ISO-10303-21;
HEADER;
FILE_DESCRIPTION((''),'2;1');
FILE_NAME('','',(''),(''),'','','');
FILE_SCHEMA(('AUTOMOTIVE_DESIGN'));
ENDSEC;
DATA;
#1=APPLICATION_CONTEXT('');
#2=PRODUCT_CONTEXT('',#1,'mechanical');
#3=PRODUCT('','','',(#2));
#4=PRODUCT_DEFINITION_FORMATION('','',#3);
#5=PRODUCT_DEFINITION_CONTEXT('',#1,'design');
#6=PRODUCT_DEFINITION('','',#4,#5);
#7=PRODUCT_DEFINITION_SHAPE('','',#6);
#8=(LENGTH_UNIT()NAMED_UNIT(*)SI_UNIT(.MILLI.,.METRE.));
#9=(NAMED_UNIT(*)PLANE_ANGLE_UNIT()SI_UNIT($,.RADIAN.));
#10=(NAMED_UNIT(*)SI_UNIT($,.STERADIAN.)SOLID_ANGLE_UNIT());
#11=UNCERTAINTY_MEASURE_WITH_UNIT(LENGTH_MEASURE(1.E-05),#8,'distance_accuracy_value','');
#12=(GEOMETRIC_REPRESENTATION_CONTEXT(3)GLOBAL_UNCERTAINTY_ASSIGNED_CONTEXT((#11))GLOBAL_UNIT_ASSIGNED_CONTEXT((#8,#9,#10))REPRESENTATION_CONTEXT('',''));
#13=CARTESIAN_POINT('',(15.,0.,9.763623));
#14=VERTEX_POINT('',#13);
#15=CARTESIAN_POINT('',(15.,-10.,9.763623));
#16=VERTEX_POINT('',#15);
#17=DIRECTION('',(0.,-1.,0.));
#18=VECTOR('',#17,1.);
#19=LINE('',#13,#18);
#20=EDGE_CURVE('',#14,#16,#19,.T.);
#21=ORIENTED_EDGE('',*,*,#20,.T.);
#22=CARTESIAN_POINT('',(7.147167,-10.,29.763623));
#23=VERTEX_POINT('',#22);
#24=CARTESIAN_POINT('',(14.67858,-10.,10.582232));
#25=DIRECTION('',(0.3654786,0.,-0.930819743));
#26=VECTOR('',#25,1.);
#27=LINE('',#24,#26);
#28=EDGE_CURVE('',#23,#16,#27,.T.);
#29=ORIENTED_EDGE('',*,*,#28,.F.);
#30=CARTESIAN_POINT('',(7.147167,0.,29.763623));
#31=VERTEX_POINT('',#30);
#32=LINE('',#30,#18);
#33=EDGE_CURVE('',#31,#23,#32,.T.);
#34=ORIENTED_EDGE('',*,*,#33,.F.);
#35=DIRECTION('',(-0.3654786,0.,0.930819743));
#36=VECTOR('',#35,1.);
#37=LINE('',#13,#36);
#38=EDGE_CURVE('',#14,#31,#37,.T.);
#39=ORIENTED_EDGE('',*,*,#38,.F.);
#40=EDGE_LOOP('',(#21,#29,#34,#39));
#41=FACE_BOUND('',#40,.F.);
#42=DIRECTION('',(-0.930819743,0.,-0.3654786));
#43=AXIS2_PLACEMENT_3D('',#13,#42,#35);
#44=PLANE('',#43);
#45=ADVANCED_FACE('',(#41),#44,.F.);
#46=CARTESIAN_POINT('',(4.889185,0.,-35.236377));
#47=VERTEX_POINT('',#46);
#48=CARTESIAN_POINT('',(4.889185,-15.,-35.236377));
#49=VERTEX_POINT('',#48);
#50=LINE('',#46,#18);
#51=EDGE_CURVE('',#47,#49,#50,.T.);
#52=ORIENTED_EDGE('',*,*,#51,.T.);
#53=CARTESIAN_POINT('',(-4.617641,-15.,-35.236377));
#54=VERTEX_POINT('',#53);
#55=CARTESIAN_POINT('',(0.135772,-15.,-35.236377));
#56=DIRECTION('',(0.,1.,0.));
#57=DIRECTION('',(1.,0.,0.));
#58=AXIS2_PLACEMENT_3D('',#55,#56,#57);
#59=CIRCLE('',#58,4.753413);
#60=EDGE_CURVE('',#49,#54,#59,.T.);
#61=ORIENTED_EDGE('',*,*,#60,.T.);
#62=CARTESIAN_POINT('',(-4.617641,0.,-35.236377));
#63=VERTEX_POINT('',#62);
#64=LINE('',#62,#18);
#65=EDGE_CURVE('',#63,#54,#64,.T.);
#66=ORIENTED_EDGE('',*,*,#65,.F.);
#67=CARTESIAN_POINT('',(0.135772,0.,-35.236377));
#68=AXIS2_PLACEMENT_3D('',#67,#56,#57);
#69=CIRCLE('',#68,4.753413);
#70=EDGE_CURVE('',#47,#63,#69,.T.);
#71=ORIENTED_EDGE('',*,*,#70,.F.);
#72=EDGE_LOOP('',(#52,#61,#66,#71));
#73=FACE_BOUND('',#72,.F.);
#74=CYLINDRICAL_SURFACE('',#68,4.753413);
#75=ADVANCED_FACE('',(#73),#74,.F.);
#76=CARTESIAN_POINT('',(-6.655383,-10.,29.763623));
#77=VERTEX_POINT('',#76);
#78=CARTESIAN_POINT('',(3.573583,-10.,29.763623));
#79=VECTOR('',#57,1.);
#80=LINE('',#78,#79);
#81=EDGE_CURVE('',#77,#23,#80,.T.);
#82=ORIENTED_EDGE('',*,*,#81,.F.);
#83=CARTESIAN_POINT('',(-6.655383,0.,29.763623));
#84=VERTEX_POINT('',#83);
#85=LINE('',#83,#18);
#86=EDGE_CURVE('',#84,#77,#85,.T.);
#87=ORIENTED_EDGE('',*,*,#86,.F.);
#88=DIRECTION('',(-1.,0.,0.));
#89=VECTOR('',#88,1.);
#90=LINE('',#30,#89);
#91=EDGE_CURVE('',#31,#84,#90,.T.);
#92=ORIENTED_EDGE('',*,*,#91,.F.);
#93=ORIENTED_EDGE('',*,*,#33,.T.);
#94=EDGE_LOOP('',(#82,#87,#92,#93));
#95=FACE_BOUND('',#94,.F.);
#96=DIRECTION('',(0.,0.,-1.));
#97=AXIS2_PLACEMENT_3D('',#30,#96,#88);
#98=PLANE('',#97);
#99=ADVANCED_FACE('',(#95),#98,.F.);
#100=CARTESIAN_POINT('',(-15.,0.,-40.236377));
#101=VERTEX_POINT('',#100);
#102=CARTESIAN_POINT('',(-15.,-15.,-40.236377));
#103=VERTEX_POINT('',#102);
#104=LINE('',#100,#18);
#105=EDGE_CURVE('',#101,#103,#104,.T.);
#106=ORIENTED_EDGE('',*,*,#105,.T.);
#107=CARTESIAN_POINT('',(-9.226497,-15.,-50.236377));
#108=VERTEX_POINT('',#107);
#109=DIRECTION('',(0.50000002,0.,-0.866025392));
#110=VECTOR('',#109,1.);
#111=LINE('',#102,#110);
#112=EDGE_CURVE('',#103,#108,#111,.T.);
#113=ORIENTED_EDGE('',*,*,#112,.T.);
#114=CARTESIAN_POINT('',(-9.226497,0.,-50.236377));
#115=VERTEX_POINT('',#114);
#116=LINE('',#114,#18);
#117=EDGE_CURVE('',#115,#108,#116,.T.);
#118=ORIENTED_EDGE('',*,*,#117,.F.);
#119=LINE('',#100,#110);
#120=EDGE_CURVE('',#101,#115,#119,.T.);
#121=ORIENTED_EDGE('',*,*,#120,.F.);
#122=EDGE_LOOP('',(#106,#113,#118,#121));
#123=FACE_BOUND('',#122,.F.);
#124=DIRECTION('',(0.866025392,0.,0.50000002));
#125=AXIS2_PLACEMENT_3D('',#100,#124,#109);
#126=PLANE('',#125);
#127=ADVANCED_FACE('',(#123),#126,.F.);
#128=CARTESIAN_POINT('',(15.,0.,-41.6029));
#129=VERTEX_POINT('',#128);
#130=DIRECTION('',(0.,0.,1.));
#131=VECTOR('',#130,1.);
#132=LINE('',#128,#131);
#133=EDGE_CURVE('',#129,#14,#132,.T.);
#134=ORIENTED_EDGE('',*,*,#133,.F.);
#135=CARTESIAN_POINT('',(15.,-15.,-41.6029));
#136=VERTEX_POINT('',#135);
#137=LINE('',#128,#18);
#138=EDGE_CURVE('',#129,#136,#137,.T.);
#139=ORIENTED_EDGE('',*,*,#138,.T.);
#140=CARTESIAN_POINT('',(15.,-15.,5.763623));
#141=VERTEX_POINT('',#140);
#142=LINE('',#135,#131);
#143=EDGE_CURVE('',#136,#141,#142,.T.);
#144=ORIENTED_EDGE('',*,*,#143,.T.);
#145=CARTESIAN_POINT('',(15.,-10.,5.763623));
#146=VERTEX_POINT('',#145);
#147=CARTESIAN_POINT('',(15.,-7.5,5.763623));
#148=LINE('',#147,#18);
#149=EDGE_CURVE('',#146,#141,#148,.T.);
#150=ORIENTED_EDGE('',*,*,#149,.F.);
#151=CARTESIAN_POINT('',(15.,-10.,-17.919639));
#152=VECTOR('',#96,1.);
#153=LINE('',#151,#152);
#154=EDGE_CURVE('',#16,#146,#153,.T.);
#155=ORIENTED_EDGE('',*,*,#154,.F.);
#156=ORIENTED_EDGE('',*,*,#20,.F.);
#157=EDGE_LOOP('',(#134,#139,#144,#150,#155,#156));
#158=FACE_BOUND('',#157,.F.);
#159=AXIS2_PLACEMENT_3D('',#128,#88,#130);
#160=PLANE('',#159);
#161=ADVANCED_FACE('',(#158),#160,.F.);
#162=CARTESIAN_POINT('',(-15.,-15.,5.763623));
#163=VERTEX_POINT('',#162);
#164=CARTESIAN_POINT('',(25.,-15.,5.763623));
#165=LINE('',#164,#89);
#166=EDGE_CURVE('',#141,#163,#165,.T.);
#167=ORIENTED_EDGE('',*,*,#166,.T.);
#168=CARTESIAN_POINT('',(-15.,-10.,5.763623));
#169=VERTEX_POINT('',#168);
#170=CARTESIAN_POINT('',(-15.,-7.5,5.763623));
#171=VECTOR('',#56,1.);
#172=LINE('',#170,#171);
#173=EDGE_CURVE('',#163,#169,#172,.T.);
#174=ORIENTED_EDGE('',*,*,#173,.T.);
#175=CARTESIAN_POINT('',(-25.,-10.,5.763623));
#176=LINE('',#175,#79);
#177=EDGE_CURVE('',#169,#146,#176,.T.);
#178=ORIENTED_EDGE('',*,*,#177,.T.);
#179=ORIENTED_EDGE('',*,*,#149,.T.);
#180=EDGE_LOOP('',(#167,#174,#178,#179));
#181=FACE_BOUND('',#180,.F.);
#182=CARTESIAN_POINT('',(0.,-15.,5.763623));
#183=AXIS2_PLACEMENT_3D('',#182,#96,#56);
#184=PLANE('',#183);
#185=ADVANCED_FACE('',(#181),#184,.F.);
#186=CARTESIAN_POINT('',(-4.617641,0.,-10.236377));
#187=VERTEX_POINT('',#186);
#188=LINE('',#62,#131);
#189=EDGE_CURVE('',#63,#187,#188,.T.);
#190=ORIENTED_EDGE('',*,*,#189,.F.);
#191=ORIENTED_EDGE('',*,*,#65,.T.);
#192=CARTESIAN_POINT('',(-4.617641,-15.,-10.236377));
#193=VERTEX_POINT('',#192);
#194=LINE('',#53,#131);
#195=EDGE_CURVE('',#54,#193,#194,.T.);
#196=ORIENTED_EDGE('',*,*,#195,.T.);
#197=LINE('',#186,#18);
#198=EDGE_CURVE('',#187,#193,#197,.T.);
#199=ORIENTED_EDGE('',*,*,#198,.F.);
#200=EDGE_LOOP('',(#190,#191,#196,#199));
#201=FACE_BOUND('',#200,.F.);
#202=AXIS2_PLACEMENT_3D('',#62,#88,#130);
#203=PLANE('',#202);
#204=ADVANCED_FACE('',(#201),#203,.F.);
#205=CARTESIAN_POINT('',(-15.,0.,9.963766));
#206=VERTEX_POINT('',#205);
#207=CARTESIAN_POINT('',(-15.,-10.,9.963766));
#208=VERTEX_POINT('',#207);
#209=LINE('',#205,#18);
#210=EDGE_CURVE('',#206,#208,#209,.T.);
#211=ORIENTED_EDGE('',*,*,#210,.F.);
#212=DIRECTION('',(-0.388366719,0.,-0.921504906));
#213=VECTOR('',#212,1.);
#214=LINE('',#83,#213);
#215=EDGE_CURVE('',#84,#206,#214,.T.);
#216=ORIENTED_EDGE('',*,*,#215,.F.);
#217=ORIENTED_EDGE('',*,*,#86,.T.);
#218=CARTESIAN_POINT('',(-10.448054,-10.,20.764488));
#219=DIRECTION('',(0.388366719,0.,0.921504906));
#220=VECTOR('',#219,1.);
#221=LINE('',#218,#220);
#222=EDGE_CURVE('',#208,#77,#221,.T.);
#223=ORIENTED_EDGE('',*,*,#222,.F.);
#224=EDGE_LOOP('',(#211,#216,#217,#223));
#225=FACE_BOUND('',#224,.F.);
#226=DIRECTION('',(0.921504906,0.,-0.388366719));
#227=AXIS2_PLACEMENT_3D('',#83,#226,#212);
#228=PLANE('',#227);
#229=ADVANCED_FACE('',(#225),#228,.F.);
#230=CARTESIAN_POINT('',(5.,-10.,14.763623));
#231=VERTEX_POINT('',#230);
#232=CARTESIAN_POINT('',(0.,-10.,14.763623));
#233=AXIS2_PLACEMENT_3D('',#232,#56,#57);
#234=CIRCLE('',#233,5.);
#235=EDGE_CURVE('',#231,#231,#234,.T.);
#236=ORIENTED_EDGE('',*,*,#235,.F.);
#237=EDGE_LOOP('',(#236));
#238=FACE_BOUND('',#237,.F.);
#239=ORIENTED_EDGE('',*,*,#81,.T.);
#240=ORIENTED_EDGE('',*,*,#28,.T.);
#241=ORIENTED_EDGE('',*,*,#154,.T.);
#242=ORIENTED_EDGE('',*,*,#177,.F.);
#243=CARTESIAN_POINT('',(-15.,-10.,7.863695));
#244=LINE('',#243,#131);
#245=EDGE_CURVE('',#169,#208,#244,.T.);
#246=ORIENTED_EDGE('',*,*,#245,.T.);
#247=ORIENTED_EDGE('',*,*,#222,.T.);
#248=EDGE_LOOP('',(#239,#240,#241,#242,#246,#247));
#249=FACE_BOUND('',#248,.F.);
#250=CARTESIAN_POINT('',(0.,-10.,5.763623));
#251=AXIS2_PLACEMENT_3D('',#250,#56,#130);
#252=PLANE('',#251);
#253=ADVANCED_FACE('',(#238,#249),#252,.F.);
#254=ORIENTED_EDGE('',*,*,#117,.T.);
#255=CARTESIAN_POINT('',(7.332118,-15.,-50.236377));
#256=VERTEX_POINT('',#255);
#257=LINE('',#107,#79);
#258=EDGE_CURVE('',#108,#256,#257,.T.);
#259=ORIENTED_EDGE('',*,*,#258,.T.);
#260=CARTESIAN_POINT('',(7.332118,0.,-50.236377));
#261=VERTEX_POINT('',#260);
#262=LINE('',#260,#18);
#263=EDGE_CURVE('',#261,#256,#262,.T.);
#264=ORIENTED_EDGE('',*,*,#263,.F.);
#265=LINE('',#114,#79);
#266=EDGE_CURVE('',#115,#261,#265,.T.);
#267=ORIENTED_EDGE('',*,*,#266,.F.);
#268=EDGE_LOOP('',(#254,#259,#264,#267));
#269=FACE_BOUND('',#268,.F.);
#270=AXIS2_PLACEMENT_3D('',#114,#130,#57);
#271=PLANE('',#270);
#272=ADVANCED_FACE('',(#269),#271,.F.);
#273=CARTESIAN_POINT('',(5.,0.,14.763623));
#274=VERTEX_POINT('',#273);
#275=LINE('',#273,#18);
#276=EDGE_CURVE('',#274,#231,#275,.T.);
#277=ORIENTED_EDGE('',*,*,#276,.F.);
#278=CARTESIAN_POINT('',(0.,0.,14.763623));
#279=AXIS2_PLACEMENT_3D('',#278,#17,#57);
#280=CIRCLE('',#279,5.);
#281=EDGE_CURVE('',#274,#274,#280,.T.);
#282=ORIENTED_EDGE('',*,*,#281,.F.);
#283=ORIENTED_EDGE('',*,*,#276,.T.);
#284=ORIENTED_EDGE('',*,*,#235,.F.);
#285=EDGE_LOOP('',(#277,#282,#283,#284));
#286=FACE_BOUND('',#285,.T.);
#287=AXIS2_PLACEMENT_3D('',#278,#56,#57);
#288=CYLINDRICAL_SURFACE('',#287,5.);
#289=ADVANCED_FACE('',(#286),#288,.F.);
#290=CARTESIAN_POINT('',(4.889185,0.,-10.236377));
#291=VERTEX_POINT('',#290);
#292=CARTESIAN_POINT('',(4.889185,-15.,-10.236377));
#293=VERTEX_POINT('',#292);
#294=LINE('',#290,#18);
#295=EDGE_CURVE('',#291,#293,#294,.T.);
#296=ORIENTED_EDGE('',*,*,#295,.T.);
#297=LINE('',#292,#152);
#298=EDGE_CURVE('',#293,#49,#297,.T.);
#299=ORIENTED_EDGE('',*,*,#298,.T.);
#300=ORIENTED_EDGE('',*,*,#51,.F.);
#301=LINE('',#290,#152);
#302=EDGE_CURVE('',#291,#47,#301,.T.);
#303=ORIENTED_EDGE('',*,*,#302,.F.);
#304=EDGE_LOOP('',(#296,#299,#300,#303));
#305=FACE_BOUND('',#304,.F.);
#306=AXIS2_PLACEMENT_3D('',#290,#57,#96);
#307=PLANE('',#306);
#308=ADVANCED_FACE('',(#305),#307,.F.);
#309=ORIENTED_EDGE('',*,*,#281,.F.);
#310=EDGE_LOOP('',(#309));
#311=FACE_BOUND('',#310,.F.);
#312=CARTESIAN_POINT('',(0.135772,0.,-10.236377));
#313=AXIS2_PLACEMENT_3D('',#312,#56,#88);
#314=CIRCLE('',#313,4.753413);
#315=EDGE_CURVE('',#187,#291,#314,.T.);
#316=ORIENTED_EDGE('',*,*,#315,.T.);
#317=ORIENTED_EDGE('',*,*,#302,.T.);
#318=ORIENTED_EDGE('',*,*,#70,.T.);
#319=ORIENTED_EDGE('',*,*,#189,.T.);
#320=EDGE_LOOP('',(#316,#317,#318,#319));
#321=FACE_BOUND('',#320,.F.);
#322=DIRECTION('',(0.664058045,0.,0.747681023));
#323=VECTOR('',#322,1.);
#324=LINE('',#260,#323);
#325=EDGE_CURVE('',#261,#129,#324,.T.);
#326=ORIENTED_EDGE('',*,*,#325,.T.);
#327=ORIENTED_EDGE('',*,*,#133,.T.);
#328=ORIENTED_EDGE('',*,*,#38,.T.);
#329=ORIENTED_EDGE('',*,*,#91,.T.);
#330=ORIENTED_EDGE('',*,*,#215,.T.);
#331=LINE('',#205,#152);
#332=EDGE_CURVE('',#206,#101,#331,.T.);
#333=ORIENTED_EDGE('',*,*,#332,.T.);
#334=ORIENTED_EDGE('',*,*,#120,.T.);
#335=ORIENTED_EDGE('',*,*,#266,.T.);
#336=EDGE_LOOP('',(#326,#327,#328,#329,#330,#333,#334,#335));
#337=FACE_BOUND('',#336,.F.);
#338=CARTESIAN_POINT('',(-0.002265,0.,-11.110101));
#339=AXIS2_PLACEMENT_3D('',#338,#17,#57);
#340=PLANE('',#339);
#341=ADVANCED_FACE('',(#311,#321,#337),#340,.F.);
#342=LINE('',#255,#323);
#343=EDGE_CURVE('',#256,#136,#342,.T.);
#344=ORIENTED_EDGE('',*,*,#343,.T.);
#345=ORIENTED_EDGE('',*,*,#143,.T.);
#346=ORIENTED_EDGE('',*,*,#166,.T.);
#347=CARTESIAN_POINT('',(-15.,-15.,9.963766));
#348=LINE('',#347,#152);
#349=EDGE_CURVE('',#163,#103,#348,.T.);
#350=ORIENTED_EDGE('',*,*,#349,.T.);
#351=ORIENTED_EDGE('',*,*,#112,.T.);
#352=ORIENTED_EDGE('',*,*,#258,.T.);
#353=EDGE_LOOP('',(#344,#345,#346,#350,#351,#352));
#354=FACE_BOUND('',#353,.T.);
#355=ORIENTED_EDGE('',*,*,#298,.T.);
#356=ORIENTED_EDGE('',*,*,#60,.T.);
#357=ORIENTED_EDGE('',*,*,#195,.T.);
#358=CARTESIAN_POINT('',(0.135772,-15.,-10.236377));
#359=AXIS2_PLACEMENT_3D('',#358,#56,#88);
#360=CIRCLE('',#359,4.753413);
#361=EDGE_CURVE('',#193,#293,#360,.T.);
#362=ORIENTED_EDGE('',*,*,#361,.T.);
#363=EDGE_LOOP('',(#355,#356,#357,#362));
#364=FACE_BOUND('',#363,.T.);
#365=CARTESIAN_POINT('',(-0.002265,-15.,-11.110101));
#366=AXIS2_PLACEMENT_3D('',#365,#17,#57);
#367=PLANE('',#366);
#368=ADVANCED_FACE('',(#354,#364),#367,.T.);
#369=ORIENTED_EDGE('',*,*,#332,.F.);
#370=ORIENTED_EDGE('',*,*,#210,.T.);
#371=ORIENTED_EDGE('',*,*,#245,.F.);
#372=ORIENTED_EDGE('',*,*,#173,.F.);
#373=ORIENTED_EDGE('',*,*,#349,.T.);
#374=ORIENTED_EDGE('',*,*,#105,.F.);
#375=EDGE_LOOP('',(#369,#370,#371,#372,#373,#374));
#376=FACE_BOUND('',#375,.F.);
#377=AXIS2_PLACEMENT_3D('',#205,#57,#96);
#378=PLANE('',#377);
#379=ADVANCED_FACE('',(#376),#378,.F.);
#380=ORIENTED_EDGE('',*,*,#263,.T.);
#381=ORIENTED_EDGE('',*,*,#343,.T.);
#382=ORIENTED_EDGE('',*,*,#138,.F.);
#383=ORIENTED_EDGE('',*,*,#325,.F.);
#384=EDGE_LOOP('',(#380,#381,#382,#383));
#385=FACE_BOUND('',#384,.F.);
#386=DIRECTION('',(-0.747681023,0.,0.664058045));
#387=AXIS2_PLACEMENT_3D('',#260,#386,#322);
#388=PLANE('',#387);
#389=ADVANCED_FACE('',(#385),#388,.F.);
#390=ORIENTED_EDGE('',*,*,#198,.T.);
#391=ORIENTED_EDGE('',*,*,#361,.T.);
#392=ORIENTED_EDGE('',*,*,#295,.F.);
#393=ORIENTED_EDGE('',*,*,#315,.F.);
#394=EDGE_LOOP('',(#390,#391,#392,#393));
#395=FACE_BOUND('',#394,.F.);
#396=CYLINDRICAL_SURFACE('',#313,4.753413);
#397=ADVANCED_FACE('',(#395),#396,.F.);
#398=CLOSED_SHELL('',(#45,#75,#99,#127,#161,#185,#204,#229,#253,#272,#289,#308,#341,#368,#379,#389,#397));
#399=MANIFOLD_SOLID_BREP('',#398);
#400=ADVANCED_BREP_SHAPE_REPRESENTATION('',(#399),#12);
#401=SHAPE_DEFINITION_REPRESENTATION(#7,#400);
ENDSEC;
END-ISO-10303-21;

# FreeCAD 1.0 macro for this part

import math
import FreeCAD as App
import Part
import Sketcher
Q = App.Units.Quantity


def add_polygon(sketch, points):
    """Adds a closed chain of lines whose ends are joined by coincident constraints."""
    first, n = sketch.GeometryCount, len(points)
    for a, b in zip(points, points[1:] + points[:1]):
        sketch.addGeometry(Part.LineSegment(App.Vector(*a, 0), App.Vector(*b, 0)), False)
    for i in range(n):
        sketch.addConstraint(Sketcher.Constraint("Coincident", first + i, 2, first + (i + 1) % n, 1))

doc = App.newDocument("Part")
body = doc.addObject("PartDesign::Body", "Body")

# Sketch on XZ plane
sketch1 = doc.addObject("Sketcher::SketchObject", "Sketch")
body.addObject(sketch1)
sketch1.AttachmentSupport = (doc.XZ_Plane, [""])
sketch1.MapMode = "FlatFace"
add_polygon(sketch1, [(-9.2, -50.2), (7.3, -50.2), (15, -41.6), (15, 9.8), (7.1, 29.8), (-6.7, 29.8), (-15, 10), (-15, -40.2)])  # lines 0-7
sketch1.addGeometry(Part.ArcOfCircle(Part.Circle(App.Vector(0.1, -35.2, 0), App.Vector(0, 0, 1), 4.8), math.radians(180), math.radians(360)), False)  # 8
sketch1.addGeometry(Part.LineSegment(App.Vector(-4.6, -35.2, 0), App.Vector(-4.6, -10.2, 0)), False)  # 9
sketch1.addGeometry(Part.ArcOfCircle(Part.Circle(App.Vector(0.1, -10.2, 0), App.Vector(0, 0, 1), 4.8), math.radians(0), math.radians(180)), False)  # 10
sketch1.addGeometry(Part.LineSegment(App.Vector(4.9, -10.2, 0), App.Vector(4.9, -35.2, 0)), False)  # 11
sketch1.addGeometry(Part.Circle(App.Vector(0, 14.8, 0), App.Vector(0, 0, 1), 5), False)  # 12
sketch1.addConstraint(Sketcher.Constraint("Tangent", 8, 1, 9, 1))
sketch1.addConstraint(Sketcher.Constraint("Tangent", 9, 2, 10, 2))
sketch1.addConstraint(Sketcher.Constraint("Tangent", 10, 1, 11, 1))
sketch1.addConstraint(Sketcher.Constraint("Tangent", 11, 2, 8, 2))
sketch1.addConstraint(Sketcher.Constraint("Horizontal", 0))
sketch1.addConstraint(Sketcher.Constraint("Vertical", 2))
sketch1.addConstraint(Sketcher.Constraint("Horizontal", 4))
sketch1.addConstraint(Sketcher.Constraint("Vertical", 6))
sketch1.addConstraint(Sketcher.Constraint("Vertical", 9))
sketch1.addConstraint(Sketcher.Constraint("Vertical", 11))
sketch1.addConstraint(Sketcher.Constraint("PointOnObject", 12, 3, -2))
sketch1.addConstraint(Sketcher.Constraint("Equal", 3, 5))
sketch1.addConstraint(Sketcher.Constraint("Equal", 1, 7))
sketch1.addConstraint(Sketcher.Constraint("Diameter", 12, Q("10 mm")))
sketch1.addConstraint(Sketcher.Constraint("DistanceY", 9, 1, 9, 2, Q("25 mm")))
sketch1.addConstraint(Sketcher.Constraint("Angle", 7, Q("-59.999999 deg")))
sketch1.addConstraint(Sketcher.Constraint("DistanceX", -1, 1, 1, 2, Q("15 mm")))
sketch1.addConstraint(Sketcher.Constraint("DistanceX", 5, 2, -1, 1, Q("15 mm")))
sketch1.addConstraint(Sketcher.Constraint("DistanceY", 10, 3, 12, 3, Q("25 mm")))
sketch1.addConstraint(Sketcher.Constraint("DistanceY", 0, 2, 8, 3, Q("15 mm")))
sketch1.addConstraint(Sketcher.Constraint("DistanceY", 2, 2, 12, 3, Q("5 mm")))
sketch1.addConstraint(Sketcher.Constraint("DistanceY", 12, 3, 3, 2, Q("15 mm")))
sketch1.addConstraint(Sketcher.Constraint("DistanceY", 6, 2, 8, 3, Q("5 mm")))
sketch1.addConstraint(Sketcher.Constraint("Radius", 8, Q("4.753413 mm")))
sketch1.addConstraint(Sketcher.Constraint("DistanceX", 4, 2, 4, 1, Q("13.80255 mm")))
sketch1.addConstraint(Sketcher.Constraint("DistanceY", 1, 2, -1, 1, Q("41.6029 mm")))
sketch1.addConstraint(Sketcher.Constraint("DistanceX", 0, 1, 0, 2, Q("16.558615 mm")))
sketch1.addConstraint(Sketcher.Constraint("DistanceY", 6, 2, 6, 1, Q("50.200143 mm")))
sketch1.addConstraint(Sketcher.Constraint("DistanceX", 8, 1, -1, 1, Q("4.617641 mm")))
pad1 = doc.addObject("PartDesign::Pad", "Pad")
body.addObject(pad1)
pad1.Profile = sketch1
pad1.Length = 15

# Sketch on YZ plane
sketch2 = doc.addObject("Sketcher::SketchObject", "Sketch001")
body.addObject(sketch2)
sketch2.AttachmentSupport = (doc.YZ_Plane, [""])
sketch2.MapMode = "FlatFace"
add_polygon(sketch2, [(-15, 6), (-10, 6), (-10, 39), (-15, 39)])  # lines 0-3
sketch2.addConstraint(Sketcher.Constraint("Horizontal", 0))
sketch2.addConstraint(Sketcher.Constraint("Vertical", 1))
sketch2.addConstraint(Sketcher.Constraint("Horizontal", 2))
sketch2.addConstraint(Sketcher.Constraint("Vertical", 3))
sketch2.addConstraint(Sketcher.Constraint("DistanceX", 0, 1, 0, 2, Q("5 mm")))
sketch2.addConstraint(Sketcher.Constraint("DistanceX", 0, 2, -1, 1, Q("10 mm")))
sketch2.addConstraint(Sketcher.Constraint("DistanceY", 1, 1, 1, 2, Q("33.677117 mm")))
sketch2.addConstraint(Sketcher.Constraint("DistanceY", -1, 1, 1, 2, Q("39.44074 mm")))
pocket1 = doc.addObject("PartDesign::Pocket", "Pocket")
body.addObject(pocket1)
pocket1.Profile = sketch2
pocket1.Length = 50
pocket1.Midplane = True

doc.recompute()
